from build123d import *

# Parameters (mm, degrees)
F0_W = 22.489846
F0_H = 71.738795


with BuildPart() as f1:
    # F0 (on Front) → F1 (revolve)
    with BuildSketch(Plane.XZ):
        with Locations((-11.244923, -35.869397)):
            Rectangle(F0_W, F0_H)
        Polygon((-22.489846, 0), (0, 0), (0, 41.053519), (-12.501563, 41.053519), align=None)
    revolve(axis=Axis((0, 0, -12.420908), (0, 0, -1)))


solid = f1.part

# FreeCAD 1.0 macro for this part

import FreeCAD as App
import Part
import Sketcher
Q = App.Units.Quantity


def add_polygon(sketch, points):
    """Adds a closed chain of lines whose ends are joined by coincident constraints."""
    first, n = sketch.GeometryCount, len(points)
    for a, b in zip(points, points[1:] + points[:1]):
        sketch.addGeometry(Part.LineSegment(App.Vector(*a, 0), App.Vector(*b, 0)), False)
    for i in range(n):
        sketch.addConstraint(Sketcher.Constraint("Coincident", first + i, 2, first + (i + 1) % n, 1))

doc = App.newDocument("Part")
body = doc.addObject("PartDesign::Body", "Body")

# Sketch on XZ plane
sketch1 = body.newObject("Sketcher::SketchObject", "Sketch")
sketch1.AttachmentSupport = (doc.getObject("XZ_Plane"), [""])
sketch1.MapMode = "FlatFace"
add_polygon(sketch1, [(-22, 0), (-22, -72), (0, -72), (0, 41), (-13, 41)])  # lines 0-4
sketch1.addConstraint([
    Sketcher.Constraint("Vertical", 0),
    Sketcher.Constraint("Horizontal", 1),
    Sketcher.Constraint("Vertical", 2),
    Sketcher.Constraint("Horizontal", 3),
    Sketcher.Constraint("PointOnObject", 1, 2, -2),
    Sketcher.Constraint("PointOnObject", 4, 2, -1),
    Sketcher.Constraint("Distance", 4, Q("42.25112 mm")),
    Sketcher.Constraint("DistanceX", 1, 1, 1, 2, Q("22.489846 mm")),
    Sketcher.Constraint("DistanceX", 3, 2, 3, 1, Q("12.501563 mm")),
    Sketcher.Constraint("DistanceY", 0, 2, 0, 1, Q("71.738794 mm")),
])
revolution = body.newObject("PartDesign::Revolution", "Revolution")
revolution.Profile = sketch1
revolution.ReferenceAxis = (sketch1, ["V_Axis"])
revolution.Angle = 360

doc.recompute()
